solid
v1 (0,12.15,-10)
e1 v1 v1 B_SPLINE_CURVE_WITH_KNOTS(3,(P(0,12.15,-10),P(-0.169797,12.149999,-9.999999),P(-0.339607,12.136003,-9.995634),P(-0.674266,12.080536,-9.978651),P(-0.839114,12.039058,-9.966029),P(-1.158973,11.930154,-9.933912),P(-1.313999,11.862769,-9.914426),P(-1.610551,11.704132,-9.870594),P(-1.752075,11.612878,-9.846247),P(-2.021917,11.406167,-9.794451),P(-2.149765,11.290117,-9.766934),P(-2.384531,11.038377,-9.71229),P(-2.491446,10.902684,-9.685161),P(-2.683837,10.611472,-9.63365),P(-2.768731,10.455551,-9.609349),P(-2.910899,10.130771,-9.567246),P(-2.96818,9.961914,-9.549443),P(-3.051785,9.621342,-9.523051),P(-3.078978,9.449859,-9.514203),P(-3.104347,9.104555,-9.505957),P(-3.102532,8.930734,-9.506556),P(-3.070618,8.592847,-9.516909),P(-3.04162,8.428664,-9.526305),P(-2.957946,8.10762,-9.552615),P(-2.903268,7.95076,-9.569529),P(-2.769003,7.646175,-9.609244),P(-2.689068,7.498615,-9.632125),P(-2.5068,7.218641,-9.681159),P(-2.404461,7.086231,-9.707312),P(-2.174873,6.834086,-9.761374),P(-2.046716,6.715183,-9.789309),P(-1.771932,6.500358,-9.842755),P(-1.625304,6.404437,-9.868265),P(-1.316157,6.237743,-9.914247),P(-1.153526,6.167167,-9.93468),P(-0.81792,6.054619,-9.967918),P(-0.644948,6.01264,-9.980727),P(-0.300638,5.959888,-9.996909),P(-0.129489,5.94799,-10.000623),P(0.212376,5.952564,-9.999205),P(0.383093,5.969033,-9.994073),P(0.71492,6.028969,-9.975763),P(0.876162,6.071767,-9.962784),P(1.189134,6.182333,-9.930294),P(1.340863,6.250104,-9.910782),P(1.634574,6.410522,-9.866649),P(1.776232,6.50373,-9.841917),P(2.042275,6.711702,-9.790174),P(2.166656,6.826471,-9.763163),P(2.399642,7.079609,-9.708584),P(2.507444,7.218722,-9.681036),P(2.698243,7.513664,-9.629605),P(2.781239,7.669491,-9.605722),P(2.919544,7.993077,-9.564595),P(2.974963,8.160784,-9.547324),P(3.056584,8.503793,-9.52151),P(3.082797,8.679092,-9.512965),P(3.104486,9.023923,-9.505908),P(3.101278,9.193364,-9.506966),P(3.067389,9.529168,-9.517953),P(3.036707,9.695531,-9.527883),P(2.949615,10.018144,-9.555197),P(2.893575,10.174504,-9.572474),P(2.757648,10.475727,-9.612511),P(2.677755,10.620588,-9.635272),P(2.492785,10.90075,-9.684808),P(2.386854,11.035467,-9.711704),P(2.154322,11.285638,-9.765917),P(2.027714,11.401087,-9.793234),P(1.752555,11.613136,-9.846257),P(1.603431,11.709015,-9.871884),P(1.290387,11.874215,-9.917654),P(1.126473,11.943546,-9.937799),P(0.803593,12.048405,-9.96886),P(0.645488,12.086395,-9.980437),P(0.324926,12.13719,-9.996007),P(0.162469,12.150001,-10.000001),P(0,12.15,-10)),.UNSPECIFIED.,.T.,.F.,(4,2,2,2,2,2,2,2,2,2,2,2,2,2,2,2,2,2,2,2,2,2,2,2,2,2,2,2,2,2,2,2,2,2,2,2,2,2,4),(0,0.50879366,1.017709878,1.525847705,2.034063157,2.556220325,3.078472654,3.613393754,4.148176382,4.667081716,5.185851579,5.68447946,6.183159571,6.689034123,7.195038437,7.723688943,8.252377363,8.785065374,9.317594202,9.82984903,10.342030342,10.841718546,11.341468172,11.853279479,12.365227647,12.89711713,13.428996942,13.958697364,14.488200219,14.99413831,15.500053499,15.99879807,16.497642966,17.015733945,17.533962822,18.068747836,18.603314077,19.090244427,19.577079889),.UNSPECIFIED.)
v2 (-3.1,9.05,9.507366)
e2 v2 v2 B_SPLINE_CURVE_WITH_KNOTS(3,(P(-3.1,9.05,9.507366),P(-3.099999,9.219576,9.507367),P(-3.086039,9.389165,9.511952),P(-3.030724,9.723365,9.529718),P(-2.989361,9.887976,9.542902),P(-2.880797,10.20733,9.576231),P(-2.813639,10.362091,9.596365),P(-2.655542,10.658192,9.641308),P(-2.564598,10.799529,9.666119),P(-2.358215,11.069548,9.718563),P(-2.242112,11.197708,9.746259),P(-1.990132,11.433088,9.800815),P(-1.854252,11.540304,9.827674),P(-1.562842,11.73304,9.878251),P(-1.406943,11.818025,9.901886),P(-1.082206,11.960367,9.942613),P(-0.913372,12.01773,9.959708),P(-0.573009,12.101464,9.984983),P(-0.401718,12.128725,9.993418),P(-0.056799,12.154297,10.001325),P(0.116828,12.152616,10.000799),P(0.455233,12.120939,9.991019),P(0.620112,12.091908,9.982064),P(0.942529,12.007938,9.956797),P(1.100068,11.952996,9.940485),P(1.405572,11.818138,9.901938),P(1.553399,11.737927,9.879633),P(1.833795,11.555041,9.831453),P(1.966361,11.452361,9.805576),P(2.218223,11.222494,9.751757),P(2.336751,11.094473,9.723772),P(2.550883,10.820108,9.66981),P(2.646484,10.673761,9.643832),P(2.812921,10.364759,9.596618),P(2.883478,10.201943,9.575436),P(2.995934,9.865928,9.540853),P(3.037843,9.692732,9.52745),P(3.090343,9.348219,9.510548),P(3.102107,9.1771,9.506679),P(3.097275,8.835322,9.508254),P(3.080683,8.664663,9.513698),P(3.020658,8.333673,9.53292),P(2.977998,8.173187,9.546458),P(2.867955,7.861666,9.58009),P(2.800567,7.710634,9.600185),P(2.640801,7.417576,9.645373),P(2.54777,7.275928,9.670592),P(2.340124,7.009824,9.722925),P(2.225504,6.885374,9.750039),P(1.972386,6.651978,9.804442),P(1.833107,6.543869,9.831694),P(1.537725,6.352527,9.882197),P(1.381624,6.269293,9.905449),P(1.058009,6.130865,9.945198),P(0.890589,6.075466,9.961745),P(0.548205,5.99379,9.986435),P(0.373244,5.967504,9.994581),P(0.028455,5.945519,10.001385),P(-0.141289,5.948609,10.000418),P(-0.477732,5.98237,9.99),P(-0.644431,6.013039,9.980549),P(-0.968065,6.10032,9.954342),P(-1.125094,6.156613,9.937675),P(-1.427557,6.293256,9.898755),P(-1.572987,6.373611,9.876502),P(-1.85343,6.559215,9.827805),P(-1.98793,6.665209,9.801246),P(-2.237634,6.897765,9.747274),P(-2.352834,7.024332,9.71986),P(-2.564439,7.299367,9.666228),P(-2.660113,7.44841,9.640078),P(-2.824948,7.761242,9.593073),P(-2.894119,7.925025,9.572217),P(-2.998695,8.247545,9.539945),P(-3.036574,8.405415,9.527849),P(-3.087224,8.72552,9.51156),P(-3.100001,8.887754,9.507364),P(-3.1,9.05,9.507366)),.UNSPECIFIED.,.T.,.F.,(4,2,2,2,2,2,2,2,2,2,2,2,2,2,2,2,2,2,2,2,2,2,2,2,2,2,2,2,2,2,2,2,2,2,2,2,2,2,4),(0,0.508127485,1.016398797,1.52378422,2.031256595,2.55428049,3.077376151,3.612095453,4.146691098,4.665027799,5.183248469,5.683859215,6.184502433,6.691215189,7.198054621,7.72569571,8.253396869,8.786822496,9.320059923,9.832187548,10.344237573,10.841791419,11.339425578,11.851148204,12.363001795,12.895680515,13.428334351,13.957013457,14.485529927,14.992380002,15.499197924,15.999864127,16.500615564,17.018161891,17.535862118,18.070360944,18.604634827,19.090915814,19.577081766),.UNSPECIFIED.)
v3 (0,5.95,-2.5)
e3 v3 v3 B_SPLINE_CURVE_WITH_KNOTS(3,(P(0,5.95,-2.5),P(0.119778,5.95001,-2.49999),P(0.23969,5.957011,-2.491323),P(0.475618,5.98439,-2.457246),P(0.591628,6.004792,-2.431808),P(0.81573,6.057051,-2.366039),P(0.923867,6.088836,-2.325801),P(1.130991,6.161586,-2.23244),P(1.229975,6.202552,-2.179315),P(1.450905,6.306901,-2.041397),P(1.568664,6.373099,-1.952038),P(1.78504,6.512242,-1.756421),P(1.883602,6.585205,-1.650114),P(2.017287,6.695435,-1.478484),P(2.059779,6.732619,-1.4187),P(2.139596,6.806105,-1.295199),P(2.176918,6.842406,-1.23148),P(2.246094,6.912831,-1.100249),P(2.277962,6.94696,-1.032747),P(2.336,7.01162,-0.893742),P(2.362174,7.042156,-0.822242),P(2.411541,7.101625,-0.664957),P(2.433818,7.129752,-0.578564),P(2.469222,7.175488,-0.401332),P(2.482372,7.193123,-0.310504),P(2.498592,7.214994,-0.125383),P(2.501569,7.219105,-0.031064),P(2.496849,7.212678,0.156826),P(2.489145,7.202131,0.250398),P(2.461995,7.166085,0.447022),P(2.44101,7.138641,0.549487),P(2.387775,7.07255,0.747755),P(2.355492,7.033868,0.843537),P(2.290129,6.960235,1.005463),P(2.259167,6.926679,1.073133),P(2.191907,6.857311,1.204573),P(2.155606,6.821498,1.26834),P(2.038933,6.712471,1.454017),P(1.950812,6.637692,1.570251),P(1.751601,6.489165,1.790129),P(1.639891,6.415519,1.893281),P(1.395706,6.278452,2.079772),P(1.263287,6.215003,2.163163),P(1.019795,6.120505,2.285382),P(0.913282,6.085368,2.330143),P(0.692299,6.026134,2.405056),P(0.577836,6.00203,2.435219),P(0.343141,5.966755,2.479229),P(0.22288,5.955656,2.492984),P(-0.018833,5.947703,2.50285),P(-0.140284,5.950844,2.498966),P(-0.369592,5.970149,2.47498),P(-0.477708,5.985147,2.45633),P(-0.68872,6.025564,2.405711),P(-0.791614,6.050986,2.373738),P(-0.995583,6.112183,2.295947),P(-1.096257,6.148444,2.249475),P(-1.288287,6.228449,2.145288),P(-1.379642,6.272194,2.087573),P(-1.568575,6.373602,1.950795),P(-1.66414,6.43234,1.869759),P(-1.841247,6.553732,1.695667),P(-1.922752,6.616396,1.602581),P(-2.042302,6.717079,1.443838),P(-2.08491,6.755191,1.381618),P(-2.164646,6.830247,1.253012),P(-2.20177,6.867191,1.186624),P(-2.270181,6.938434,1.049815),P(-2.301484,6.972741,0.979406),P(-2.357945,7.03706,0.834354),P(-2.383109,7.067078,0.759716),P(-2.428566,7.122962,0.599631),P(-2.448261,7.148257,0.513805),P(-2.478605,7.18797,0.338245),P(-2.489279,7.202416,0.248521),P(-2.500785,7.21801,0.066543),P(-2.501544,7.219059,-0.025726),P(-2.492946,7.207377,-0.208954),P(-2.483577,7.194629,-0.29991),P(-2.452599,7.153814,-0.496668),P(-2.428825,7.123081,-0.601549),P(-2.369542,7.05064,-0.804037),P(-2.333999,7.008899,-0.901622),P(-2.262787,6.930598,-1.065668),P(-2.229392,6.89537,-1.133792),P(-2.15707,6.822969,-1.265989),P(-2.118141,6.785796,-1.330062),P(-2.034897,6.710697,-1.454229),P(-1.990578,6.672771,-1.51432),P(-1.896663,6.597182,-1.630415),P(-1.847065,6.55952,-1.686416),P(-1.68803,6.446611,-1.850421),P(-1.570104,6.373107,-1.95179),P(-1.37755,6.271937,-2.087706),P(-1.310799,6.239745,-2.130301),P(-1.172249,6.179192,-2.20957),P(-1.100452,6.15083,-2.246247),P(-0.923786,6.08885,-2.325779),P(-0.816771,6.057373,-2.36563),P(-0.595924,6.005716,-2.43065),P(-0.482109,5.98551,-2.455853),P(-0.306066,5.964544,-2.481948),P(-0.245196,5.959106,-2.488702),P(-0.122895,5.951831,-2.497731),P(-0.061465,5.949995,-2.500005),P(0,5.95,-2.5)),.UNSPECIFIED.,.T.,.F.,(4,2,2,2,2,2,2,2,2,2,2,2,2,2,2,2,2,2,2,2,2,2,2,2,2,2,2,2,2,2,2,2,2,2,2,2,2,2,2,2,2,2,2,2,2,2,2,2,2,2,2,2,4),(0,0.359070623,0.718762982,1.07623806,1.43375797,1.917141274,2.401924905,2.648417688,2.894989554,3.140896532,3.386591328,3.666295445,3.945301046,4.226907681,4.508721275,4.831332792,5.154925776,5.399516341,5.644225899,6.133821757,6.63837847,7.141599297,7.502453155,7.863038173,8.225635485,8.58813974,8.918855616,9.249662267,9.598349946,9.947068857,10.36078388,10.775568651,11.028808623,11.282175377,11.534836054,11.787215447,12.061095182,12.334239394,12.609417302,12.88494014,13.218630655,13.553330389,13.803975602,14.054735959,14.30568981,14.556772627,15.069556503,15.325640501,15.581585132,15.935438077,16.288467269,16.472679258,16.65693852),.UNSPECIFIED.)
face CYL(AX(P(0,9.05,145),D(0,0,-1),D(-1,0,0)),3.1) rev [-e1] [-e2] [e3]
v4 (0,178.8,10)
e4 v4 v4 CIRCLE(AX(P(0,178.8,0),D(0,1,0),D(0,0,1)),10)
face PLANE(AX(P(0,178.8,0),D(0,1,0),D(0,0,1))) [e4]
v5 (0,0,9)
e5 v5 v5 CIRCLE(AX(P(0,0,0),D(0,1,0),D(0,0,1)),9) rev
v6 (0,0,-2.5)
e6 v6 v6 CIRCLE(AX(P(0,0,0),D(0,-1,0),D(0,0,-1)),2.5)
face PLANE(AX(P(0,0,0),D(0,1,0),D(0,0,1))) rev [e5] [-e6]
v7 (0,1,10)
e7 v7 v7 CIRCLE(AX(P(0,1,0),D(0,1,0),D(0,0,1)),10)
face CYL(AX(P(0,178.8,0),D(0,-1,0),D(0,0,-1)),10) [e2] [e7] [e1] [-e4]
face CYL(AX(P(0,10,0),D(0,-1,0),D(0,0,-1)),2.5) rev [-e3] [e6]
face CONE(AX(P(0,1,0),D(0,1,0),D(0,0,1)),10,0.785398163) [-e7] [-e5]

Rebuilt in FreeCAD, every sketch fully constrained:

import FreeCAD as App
import Part
import Sketcher


def edges_at(feature, points):
    """Names of the edges that pass closest to the given points."""
    edges = feature.Shape.Edges
    near = lambda p: min(range(len(edges)), key=lambda i: edges[i].distToShape(Part.Vertex(*p))[0])
    return sorted({f"Edge{near(p) + 1}" for p in points})

doc = App.newDocument("Part")
params = doc.addObject("Spreadsheet::Sheet", "Params")
for row, (alias, value) in enumerate([
    ("sketch1_diameter", "20 mm"),
    ("pad1_length", "178.8 mm"),
    ("chamfer_size", "1 mm"),
    ("sketch2_diameter", "6.2 mm"),
    ("pocket1_length", "155 mm"),
    ("sketch3_diameter", "5 mm"),
    ("pocket2_length", "10 mm"),
], start=1):
    params.set(f"A{row}", alias)
    params.set(f"B{row}", "=" + value)
    params.setAlias(f"B{row}", alias)

body = doc.addObject("PartDesign::Body", "Body")

# Sketch on XZ plane
sketch1 = body.newObject("Sketcher::SketchObject", "Sketch")
sketch1.AttachmentSupport = (doc.getObject("XZ_Plane"), [""])
sketch1.MapMode = "FlatFace"
sketch1.addGeometry(Part.Circle(App.Vector(0, 0, 0), App.Vector(0, 0, 1), 10), False)
sketch1.addConstraint(Sketcher.Constraint("Coincident", 0, 3, -1, 1))
sketch1.addConstraint(Sketcher.Constraint("Diameter", 0, 20.0))
sketch1.setExpression("Constraints[1]", "Params.sketch1_diameter")
pad1 = body.newObject("PartDesign::Pad", "Pad")
pad1.Profile = sketch1
pad1.setExpression("Length", "Params.pad1_length")
pad1.Reversed = True
doc.recompute()

chamfer = body.newObject("PartDesign::Chamfer", "Chamfer")
chamfer.Base = (pad1, edges_at(pad1, [(0, 0, 10)]))
chamfer.setExpression("Size", "Params.chamfer_size")

# Sketch on XY plane
sketch2 = body.newObject("Sketcher::SketchObject", "Sketch001")
sketch2.AttachmentSupport = (doc.getObject("XY_Plane"), [""])
sketch2.MapMode = "FlatFace"
sketch2.AttachmentOffset = App.Placement(App.Vector(0, 0, -10), App.Rotation())
sketch2.addGeometry(Part.Circle(App.Vector(0, 9.1, 0), App.Vector(0, 0, 1), 3.1), False)
sketch2.addConstraint(Sketcher.Constraint("PointOnObject", 0, 3, -2))
sketch2.addConstraint(Sketcher.Constraint("Diameter", 0, 6.2))
sketch2.addConstraint(Sketcher.Constraint("DistanceY", -1, 1, 0, 3, 9.05))
sketch2.setExpression("Constraints[1]", "Params.sketch2_diameter")
pocket1 = body.newObject("PartDesign::Pocket", "Pocket")
pocket1.Profile = sketch2
pocket1.setExpression("Length", "Params.pocket1_length")
pocket1.Reversed = True

# Sketch on XZ plane
sketch3 = body.newObject("Sketcher::SketchObject", "Sketch002")
sketch3.AttachmentSupport = (doc.getObject("XZ_Plane"), [""])
sketch3.MapMode = "FlatFace"
sketch3.addGeometry(Part.Circle(App.Vector(0, 0, 0), App.Vector(0, 0, 1), 2.5), False)
sketch3.addConstraint(Sketcher.Constraint("Coincident", 0, 3, -1, 1))
sketch3.addConstraint(Sketcher.Constraint("Diameter", 0, 5.0))
sketch3.setExpression("Constraints[1]", "Params.sketch3_diameter")
pocket2 = body.newObject("PartDesign::Pocket", "Pocket001")
pocket2.Profile = sketch3
pocket2.setExpression("Length", "Params.pocket2_length")

doc.recompute()
